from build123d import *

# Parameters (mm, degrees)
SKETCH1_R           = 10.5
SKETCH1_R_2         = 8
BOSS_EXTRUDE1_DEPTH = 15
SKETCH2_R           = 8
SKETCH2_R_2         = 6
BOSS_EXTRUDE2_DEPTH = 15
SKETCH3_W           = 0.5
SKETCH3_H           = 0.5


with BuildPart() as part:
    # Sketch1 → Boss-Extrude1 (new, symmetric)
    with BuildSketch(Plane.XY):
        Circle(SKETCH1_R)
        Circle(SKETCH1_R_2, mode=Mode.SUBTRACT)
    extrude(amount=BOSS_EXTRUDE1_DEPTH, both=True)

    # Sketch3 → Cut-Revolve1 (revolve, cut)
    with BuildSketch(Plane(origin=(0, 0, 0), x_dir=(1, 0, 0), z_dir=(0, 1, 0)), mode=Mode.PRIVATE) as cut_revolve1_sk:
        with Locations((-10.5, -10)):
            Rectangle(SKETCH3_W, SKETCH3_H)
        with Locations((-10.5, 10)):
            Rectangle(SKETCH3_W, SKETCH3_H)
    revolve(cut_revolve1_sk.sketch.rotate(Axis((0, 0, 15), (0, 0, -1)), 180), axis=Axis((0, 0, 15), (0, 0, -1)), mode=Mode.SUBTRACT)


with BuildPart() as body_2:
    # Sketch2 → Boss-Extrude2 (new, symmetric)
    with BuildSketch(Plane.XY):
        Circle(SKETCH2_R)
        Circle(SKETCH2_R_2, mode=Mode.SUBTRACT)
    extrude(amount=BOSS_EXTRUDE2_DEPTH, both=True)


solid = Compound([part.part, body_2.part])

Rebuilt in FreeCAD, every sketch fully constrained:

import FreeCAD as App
import Part
import Sketcher
from FreeCAD import Vector


def add_polygon(sketch, points):
    """Adds a closed chain of lines whose ends are joined by coincident constraints."""
    first, n = sketch.GeometryCount, len(points)
    for a, b in zip(points, points[1:] + points[:1]):
        sketch.addGeometry(Part.LineSegment(App.Vector(*a, 0), App.Vector(*b, 0)), False)
    for i in range(n):
        sketch.addConstraint(Sketcher.Constraint("Coincident", first + i, 2, first + (i + 1) % n, 1))

doc = App.newDocument("Part")
body = doc.addObject("PartDesign::Body", "Body")

# Sketch on XY plane
sketch1 = body.newObject("Sketcher::SketchObject", "Sketch")
sketch1.AttachmentSupport = (doc.getObject("XY_Plane"), [""])
sketch1.MapMode = "FlatFace"
sketch1.addGeometry(Part.Circle(Vector(0, 0, 0), Vector(0, 0, 1), 10.5), False)
sketch1.addGeometry(Part.Circle(Vector(0, 0, 0), Vector(0, 0, 1), 8), False)
sketch1.addConstraint(Sketcher.Constraint("Coincident", 0, 3, -1, 1))
sketch1.addConstraint(Sketcher.Constraint("Coincident", 1, 3, -1, 1))
sketch1.addConstraint(Sketcher.Constraint("Diameter", 0, 21.0))
sketch1.addConstraint(Sketcher.Constraint("Diameter", 1, 16.0))
pad1 = body.newObject("PartDesign::Pad", "Pad")
pad1.Profile = sketch1
pad1.Length = 30
pad1.Midplane = True

# Sketch on XZ plane
sketch2 = body.newObject("Sketcher::SketchObject", "Sketch001")
sketch2.AttachmentSupport = (doc.getObject("XZ_Plane"), [""])
sketch2.MapMode = "FlatFace"
add_polygon(sketch2, [(-10.75, 9.75), (-10.75, 10.25), (-10.25, 10.25), (-10.25, 9.75)])  # lines 0-3
add_polygon(sketch2, [(-10.75, -10.25), (-10.75, -9.75), (-10.25, -9.75), (-10.25, -10.25)])  # lines 4-7
sketch2.addConstraint(Sketcher.Constraint("Vertical", 0))
sketch2.addConstraint(Sketcher.Constraint("Horizontal", 1))
sketch2.addConstraint(Sketcher.Constraint("Vertical", 2))
sketch2.addConstraint(Sketcher.Constraint("Horizontal", 3))
sketch2.addConstraint(Sketcher.Constraint("Vertical", 4))
sketch2.addConstraint(Sketcher.Constraint("Horizontal", 5))
sketch2.addConstraint(Sketcher.Constraint("Vertical", 6))
sketch2.addConstraint(Sketcher.Constraint("Horizontal", 7))
sketch2.addConstraint(Sketcher.Constraint("Symmetric", 3, 2, 4, 2, -1))
sketch2.addConstraint(Sketcher.Constraint("Symmetric", 1, 2, 6, 2, -1))
sketch2.addConstraint(Sketcher.Constraint("Equal", 7, 0))
sketch2.addConstraint(Sketcher.Constraint("DistanceX", 1, 1, 1, 2, 0.5))
sketch2.addConstraint(Sketcher.Constraint("DistanceY", 4, 2, 0, 2, 20.0))
sketch2.addConstraint(Sketcher.Constraint("DistanceX", 0, 2, -1, 1, 10.75))
groove = body.newObject("PartDesign::Groove", "Groove")
groove.Profile = sketch2
groove.ReferenceAxis = (sketch2, ["V_Axis"])
groove.Angle = 360
body2 = doc.addObject("PartDesign::Body", "Body001")

# Sketch on XY plane
sketch3 = body2.newObject("Sketcher::SketchObject", "Sketch002")
sketch3.AttachmentSupport = (doc.getObject("XY_Plane001"), [""])
sketch3.MapMode = "FlatFace"
sketch3.addGeometry(Part.Circle(Vector(0, 0, 0), Vector(0, 0, 1), 8), False)
sketch3.addGeometry(Part.Circle(Vector(0, 0, 0), Vector(0, 0, 1), 6), False)
sketch3.addConstraint(Sketcher.Constraint("Coincident", 0, 3, -1, 1))
sketch3.addConstraint(Sketcher.Constraint("Coincident", 1, 3, -1, 1))
sketch3.addConstraint(Sketcher.Constraint("Diameter", 0, 16.0))
sketch3.addConstraint(Sketcher.Constraint("Diameter", 1, 12.0))
pad2 = body2.newObject("PartDesign::Pad", "Pad001")
pad2.Profile = sketch3
pad2.Length = 30
pad2.Midplane = True

doc.recompute()
